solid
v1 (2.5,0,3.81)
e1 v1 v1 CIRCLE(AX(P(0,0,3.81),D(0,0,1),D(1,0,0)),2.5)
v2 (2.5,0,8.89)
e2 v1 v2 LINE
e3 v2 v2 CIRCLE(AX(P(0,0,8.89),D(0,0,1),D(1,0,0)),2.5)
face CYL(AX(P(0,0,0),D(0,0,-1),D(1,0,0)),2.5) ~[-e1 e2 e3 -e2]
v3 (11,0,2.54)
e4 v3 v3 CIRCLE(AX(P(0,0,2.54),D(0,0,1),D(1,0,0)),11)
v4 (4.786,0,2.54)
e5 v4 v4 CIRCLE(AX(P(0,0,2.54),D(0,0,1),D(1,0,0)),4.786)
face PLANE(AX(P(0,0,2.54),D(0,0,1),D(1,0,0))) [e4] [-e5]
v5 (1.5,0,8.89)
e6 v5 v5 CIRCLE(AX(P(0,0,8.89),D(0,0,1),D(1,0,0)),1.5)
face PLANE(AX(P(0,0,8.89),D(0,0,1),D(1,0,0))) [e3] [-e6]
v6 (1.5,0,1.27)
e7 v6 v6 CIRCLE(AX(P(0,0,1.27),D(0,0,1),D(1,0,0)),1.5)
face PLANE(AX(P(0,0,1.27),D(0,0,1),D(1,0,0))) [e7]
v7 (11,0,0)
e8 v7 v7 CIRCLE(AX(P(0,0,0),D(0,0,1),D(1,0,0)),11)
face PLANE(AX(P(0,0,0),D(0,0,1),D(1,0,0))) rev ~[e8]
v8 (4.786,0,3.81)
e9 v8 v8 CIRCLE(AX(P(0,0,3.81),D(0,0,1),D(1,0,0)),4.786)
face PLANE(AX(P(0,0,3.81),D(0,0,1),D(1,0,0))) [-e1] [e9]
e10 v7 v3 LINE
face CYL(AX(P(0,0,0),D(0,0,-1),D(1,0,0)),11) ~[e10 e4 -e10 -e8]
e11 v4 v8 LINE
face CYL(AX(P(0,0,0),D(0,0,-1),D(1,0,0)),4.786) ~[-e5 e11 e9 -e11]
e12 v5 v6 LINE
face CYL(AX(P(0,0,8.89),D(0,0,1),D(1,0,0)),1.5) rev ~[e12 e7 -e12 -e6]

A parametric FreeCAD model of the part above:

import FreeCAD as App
import Part
import Sketcher

V = App.Vector
Q = App.Units.Quantity

doc = App.newDocument("Part")
body = doc.addObject("PartDesign::Body", "Body")

sketch1 = body.newObject("Sketcher::SketchObject", "Sketch")
sketch1.AttachmentSupport = (doc.getObject("XY_Plane"), [""])
sketch1.MapMode = "FlatFace"
sketch1.addGeometry(Part.Circle(V(0, 0, 0), V(0, 0, 1), 2.5), False)
sketch1.addConstraint([
    Sketcher.Constraint("Coincident", 0, 3, -1, 1),
    Sketcher.Constraint("Diameter", 0, 5.0),
])
pad1 = body.newObject("PartDesign::Pad", "Pad")
pad1.Profile = sketch1
pad1.Length = Q("0.35 in")

sketch2 = body.newObject("Sketcher::SketchObject", "Sketch001")
sketch2.AttachmentSupport = (doc.getObject("XY_Plane"), [""])
sketch2.MapMode = "FlatFace"
sketch2.addGeometry([
    Part.Circle(V(0, 0, 0), V(0, 0, 1), 4.8),
    Part.Circle(V(0, 0, 0), V(0, 0, 1), 2.5),
], False)
sketch2.addConstraint([
    Sketcher.Constraint("Coincident", 0, 3, -1, 1),
    Sketcher.Constraint("Coincident", 1, 3, -1, 1),
    Sketcher.Constraint("Diameter", 0, 9.572),
    Sketcher.Constraint("Diameter", 1, 5.0),
])
pad2 = body.newObject("PartDesign::Pad", "Pad001")
pad2.Profile = sketch2
pad2.Length = Q("0.15 in")

sketch3 = body.newObject("Sketcher::SketchObject", "Sketch002")
sketch3.AttachmentSupport = (doc.getObject("XY_Plane"), [""])
sketch3.MapMode = "FlatFace"
sketch3.addGeometry([
    Part.Circle(V(0, 0, 0), V(0, 0, 1), 11),
    Part.Circle(V(0, 0, 0), V(0, 0, 1), 4.8),
], False)
sketch3.addConstraint([
    Sketcher.Constraint("Coincident", 0, 3, -1, 1),
    Sketcher.Constraint("Coincident", 1, 3, -1, 1),
    Sketcher.Constraint("Diameter", 0, 22.0),
    Sketcher.Constraint("Diameter", 1, 9.572),
])
pad3 = body.newObject("PartDesign::Pad", "Pad002")
pad3.Profile = sketch3
pad3.Length = Q("0.1 in")

sketch4 = body.newObject("Sketcher::SketchObject", "Sketch003")
sketch4.AttachmentSupport = (doc.getObject("XY_Plane"), [""])
sketch4.MapMode = "FlatFace"
sketch4.AttachmentOffset = App.Placement(V(0, 0, 0.35 * 25.4), App.Rotation())
sketch4.addGeometry(Part.Circle(V(0, 0, 0), V(0, 0, 1), 1.5), False)
sketch4.addConstraint([
    Sketcher.Constraint("Coincident", 0, 3, -1, 1),
    Sketcher.Constraint("Diameter", 0, 3.0),
])
pocket1 = body.newObject("PartDesign::Pocket", "Pocket")
pocket1.Profile = sketch4
pocket1.Length = Q("0.3 in")

doc.recompute()
